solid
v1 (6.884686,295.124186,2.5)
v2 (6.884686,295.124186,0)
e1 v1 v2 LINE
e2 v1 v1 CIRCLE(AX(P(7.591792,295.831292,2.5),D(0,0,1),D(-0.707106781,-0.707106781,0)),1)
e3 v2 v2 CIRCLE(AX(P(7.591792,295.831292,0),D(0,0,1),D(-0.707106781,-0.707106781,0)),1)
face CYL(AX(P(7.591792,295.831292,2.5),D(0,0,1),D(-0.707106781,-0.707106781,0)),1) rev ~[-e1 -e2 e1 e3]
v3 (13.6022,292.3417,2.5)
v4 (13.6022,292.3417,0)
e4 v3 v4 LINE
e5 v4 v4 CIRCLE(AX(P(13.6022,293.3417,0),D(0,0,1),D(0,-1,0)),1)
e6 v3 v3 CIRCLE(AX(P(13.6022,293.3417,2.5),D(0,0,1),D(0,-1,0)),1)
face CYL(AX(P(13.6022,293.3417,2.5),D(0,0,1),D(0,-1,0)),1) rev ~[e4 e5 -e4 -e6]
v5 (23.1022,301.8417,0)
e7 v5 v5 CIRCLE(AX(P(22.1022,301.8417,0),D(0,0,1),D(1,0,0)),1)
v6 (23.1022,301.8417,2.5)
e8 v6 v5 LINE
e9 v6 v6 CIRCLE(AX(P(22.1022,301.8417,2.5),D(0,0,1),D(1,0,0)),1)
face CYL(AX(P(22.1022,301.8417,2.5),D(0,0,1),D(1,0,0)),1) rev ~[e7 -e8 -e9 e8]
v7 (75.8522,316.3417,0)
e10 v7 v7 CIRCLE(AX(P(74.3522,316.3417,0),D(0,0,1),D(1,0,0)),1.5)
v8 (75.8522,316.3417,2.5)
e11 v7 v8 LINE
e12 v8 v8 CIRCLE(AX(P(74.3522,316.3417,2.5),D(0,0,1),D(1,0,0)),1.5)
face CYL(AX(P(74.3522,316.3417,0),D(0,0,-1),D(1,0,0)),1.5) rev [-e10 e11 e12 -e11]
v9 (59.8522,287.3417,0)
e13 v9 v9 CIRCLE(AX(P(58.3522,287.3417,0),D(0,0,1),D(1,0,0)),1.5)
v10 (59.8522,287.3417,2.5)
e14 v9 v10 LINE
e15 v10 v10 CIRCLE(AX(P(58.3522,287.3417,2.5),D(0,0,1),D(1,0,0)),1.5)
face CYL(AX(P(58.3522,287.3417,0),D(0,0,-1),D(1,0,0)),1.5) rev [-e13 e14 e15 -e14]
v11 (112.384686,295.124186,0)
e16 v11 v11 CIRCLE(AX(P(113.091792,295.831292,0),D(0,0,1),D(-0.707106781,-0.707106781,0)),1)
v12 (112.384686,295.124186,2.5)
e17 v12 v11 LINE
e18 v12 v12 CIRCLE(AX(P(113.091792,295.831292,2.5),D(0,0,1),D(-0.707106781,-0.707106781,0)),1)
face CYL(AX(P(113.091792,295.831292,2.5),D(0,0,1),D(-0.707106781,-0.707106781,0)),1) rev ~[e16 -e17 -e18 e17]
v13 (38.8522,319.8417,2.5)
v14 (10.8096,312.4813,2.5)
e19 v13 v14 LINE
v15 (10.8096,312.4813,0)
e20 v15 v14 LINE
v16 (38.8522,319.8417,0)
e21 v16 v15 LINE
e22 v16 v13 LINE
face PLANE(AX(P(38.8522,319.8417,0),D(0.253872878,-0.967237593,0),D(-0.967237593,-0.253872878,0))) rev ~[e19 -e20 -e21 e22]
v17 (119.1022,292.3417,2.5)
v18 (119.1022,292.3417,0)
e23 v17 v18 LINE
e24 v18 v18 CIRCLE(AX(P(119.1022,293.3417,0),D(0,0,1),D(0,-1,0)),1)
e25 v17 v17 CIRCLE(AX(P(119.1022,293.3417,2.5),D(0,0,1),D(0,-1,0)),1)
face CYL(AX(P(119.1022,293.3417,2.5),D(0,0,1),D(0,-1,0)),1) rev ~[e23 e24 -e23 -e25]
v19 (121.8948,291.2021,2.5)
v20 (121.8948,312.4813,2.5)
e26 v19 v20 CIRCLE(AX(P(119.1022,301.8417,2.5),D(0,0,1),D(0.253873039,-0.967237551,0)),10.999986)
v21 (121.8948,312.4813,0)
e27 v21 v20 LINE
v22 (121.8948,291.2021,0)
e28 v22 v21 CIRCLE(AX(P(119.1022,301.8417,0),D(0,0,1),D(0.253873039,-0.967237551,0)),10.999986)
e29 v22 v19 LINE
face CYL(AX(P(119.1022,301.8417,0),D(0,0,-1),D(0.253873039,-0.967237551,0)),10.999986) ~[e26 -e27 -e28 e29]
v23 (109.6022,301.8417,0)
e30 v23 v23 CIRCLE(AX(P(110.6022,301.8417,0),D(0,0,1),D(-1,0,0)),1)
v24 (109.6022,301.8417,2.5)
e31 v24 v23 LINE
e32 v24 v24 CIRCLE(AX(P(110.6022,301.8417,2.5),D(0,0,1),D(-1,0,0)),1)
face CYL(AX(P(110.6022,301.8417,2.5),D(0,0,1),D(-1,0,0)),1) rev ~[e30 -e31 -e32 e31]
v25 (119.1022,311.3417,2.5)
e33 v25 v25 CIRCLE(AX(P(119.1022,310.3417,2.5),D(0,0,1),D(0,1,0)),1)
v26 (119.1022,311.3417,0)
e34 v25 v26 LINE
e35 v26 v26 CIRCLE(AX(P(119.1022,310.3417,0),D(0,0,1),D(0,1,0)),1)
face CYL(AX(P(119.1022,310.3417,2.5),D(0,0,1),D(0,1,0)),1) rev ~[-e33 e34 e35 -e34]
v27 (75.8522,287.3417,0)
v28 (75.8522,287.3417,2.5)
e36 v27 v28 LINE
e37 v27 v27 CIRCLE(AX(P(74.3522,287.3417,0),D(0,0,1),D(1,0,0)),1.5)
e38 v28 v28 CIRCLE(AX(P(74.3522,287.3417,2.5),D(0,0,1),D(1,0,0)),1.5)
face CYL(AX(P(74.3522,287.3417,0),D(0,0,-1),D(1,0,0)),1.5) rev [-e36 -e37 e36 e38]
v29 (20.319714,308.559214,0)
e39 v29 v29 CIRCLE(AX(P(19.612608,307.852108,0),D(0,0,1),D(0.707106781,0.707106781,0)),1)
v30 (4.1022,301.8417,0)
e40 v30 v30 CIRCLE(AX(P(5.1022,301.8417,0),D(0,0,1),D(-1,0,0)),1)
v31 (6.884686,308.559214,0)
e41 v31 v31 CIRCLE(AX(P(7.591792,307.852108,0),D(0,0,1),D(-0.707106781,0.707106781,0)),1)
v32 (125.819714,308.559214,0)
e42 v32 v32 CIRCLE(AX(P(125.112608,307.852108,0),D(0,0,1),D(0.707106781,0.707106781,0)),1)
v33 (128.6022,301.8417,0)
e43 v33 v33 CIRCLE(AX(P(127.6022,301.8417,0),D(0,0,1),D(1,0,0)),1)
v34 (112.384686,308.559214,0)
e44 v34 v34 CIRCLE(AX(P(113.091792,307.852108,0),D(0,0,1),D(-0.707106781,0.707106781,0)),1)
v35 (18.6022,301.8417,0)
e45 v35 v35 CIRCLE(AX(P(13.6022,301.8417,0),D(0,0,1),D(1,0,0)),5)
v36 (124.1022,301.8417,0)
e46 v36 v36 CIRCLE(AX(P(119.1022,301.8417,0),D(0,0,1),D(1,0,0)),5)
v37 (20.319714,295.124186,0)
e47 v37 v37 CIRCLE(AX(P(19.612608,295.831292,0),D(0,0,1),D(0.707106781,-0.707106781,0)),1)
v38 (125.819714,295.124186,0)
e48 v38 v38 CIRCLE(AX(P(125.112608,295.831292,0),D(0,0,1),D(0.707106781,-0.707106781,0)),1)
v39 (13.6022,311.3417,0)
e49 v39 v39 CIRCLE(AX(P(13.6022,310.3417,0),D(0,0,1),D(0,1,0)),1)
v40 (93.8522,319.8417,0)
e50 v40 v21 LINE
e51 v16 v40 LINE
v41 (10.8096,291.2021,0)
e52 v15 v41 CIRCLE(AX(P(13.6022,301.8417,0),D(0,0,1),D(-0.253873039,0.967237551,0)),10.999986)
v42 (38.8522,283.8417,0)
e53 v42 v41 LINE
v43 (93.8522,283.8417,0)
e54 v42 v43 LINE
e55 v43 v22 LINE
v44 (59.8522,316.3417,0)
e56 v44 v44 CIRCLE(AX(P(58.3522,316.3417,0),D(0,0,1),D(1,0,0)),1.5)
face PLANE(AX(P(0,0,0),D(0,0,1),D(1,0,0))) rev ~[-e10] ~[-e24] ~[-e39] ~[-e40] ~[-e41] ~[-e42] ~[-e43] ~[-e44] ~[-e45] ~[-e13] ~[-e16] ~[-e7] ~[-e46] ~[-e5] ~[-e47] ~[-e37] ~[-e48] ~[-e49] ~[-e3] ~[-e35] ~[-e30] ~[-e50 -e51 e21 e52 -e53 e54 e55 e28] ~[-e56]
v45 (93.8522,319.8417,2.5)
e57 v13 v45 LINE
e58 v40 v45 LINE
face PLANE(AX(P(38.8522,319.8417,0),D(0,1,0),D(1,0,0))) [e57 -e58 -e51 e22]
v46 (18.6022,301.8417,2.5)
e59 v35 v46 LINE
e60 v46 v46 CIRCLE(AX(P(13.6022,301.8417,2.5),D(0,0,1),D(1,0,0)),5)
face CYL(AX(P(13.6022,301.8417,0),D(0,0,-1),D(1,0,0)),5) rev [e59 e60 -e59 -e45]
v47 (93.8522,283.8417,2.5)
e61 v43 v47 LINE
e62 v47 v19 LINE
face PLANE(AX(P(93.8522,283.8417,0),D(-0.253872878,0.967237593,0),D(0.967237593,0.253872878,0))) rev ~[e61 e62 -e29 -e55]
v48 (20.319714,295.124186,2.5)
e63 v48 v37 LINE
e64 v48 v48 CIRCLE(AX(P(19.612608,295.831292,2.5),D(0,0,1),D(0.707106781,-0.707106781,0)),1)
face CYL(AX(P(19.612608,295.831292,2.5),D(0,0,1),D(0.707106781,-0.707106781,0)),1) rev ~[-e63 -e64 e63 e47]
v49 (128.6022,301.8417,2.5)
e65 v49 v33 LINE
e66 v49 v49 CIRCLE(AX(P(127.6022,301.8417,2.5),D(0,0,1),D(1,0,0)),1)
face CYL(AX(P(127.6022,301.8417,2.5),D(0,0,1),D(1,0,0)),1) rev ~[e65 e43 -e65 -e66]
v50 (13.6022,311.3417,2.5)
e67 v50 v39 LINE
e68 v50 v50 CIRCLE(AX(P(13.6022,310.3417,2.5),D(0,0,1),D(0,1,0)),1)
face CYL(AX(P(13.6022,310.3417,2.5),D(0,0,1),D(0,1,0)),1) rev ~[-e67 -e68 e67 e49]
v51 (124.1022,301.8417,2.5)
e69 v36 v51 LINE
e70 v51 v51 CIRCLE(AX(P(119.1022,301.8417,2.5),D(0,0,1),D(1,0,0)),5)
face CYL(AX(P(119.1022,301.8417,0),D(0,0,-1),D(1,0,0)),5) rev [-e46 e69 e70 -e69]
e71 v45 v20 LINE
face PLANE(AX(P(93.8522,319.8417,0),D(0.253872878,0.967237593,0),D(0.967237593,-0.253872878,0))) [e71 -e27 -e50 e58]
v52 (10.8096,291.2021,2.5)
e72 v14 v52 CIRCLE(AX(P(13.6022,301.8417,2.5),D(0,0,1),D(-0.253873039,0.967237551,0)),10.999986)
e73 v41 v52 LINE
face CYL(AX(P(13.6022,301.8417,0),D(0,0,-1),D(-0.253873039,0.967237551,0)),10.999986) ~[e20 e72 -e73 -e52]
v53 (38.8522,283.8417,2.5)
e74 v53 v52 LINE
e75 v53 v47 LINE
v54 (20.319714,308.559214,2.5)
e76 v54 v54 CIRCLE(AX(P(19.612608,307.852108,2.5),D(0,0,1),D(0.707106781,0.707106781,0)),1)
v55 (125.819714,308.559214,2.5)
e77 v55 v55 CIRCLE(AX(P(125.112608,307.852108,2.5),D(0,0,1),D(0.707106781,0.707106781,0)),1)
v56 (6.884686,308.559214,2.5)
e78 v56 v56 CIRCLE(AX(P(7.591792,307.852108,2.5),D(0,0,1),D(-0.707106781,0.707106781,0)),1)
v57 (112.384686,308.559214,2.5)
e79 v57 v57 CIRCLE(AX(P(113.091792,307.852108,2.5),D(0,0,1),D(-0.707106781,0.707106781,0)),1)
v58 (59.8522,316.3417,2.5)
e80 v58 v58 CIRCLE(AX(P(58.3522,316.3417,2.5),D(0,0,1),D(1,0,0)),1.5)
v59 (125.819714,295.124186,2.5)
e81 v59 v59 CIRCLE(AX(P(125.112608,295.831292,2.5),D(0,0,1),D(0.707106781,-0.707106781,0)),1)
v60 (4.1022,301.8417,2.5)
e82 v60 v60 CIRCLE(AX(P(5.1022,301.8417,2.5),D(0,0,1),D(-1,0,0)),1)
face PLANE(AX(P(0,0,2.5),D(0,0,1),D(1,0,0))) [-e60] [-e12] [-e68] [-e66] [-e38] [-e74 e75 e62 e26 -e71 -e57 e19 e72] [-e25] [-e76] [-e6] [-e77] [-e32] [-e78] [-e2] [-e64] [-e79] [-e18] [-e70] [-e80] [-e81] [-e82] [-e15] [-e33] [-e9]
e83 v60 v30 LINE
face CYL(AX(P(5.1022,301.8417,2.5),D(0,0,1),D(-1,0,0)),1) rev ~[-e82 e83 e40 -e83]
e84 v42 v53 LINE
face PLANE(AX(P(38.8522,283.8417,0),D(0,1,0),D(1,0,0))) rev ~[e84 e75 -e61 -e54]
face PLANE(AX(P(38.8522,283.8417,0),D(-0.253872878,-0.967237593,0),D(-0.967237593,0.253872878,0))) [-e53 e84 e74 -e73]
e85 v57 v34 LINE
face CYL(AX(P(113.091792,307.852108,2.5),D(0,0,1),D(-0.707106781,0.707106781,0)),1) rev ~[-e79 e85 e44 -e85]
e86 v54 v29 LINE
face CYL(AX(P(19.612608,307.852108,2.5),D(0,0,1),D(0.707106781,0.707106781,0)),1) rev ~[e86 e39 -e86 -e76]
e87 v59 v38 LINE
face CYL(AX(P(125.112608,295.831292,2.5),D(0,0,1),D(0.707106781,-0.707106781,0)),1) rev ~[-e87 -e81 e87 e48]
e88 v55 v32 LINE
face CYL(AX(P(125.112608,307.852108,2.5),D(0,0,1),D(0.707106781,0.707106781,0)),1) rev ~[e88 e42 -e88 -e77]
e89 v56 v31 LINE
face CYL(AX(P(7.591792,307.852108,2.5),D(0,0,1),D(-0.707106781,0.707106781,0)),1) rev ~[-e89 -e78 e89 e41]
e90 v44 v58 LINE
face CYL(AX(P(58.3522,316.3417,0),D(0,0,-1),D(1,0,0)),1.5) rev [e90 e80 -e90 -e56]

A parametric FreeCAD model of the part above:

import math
import FreeCAD as App
import Part
import Sketcher
Q = App.Units.Quantity

doc = App.newDocument("Part")
body = doc.addObject("PartDesign::Body", "Body")

# Sketch on XY plane
sketch1 = body.newObject("Sketcher::SketchObject", "Sketch")
sketch1.AttachmentSupport = (doc.getObject("XY_Plane"), [""])
sketch1.MapMode = "FlatFace"
sketch1.addGeometry(Part.LineSegment(App.Vector(10.8, 291.2, 0), App.Vector(38.9, 283.8, 0)), False)
sketch1.addGeometry(Part.LineSegment(App.Vector(38.9, 283.8, 0), App.Vector(93.9, 283.8, 0)), False)
sketch1.addGeometry(Part.LineSegment(App.Vector(93.9, 283.8, 0), App.Vector(121.9, 291.2, 0)), False)
sketch1.addGeometry(Part.ArcOfCircle(Part.Circle(App.Vector(119.1, 301.8, 0), App.Vector(0, 0, 1), 11), math.radians(-75), math.radians(75)), False)
sketch1.addGeometry(Part.LineSegment(App.Vector(121.9, 312.5, 0), App.Vector(93.9, 319.8, 0)), False)
sketch1.addGeometry(Part.LineSegment(App.Vector(93.9, 319.8, 0), App.Vector(38.9, 319.8, 0)), False)
sketch1.addGeometry(Part.LineSegment(App.Vector(38.9, 319.8, 0), App.Vector(10.8, 312.5, 0)), False)
sketch1.addGeometry(Part.ArcOfCircle(Part.Circle(App.Vector(13.6, 301.8, 0), App.Vector(0, 0, 1), 11), math.radians(105), math.radians(255)), False)
sketch1.addGeometry(Part.Circle(App.Vector(58.4, 287.3, 0), App.Vector(0, 0, 1), 1.5), False)
sketch1.addGeometry(Part.Circle(App.Vector(74.4, 287.3, 0), App.Vector(0, 0, 1), 1.5), False)
sketch1.addGeometry(Part.Circle(App.Vector(13.6, 301.8, 0), App.Vector(0, 0, 1), 5), False)
sketch1.addGeometry(Part.Circle(App.Vector(58.4, 316.3, 0), App.Vector(0, 0, 1), 1.5), False)
sketch1.addGeometry(Part.Circle(App.Vector(119.1, 301.8, 0), App.Vector(0, 0, 1), 5), False)
sketch1.addGeometry(Part.Circle(App.Vector(74.4, 316.3, 0), App.Vector(0, 0, 1), 1.5), False)
sketch1.addConstraint(Sketcher.Constraint("Coincident", 0, 2, 1, 1))
sketch1.addConstraint(Sketcher.Constraint("Coincident", 1, 2, 2, 1))
sketch1.addConstraint(Sketcher.Constraint("Tangent", 2, 2, 3, 1))
sketch1.addConstraint(Sketcher.Constraint("Tangent", 3, 2, 4, 1))
sketch1.addConstraint(Sketcher.Constraint("Coincident", 4, 2, 5, 1))
sketch1.addConstraint(Sketcher.Constraint("Coincident", 5, 2, 6, 1))
sketch1.addConstraint(Sketcher.Constraint("Tangent", 6, 2, 7, 1))
sketch1.addConstraint(Sketcher.Constraint("Tangent", 7, 2, 0, 1))
sketch1.addConstraint(Sketcher.Constraint("Horizontal", 1))
sketch1.addConstraint(Sketcher.Constraint("Horizontal", 5))
sketch1.addConstraint(Sketcher.Constraint("Coincident", 10, 3, 7, 3))
sketch1.addConstraint(Sketcher.Constraint("Coincident", 12, 3, 3, 3))
sketch1.addConstraint(Sketcher.Constraint("Equal", 3, 7))
sketch1.addConstraint(Sketcher.Constraint("Equal", 8, 9))
sketch1.addConstraint(Sketcher.Constraint("Equal", 9, 11))
sketch1.addConstraint(Sketcher.Constraint("Equal", 10, 12))
sketch1.addConstraint(Sketcher.Constraint("Equal", 11, 13))
sketch1.addConstraint(Sketcher.Constraint("Parallel", 0, 4))
sketch1.addConstraint(Sketcher.Constraint("Parallel", 2, 6))
sketch1.addConstraint(Sketcher.Constraint("Horizontal", 3, 3, 7, 3))
sketch1.addConstraint(Sketcher.Constraint("Horizontal", 8, 3, 9, 3))
sketch1.addConstraint(Sketcher.Constraint("Horizontal", 11, 3, 13, 3))
sketch1.addConstraint(Sketcher.Constraint("Horizontal", 3, 2, 6, 2))
sketch1.addConstraint(Sketcher.Constraint("Vertical", 8, 3, 11, 3))
sketch1.addConstraint(Sketcher.Constraint("Vertical", 9, 3, 13, 3))
sketch1.addConstraint(Sketcher.Constraint("Vertical", 1, 2, 4, 2))
sketch1.addConstraint(Sketcher.Constraint("Diameter", 8, Q("3 mm")))
sketch1.addConstraint(Sketcher.Constraint("Diameter", 10, Q("10 mm")))
sketch1.addConstraint(Sketcher.Constraint("Radius", 3, Q("11 mm")))
sketch1.addConstraint(Sketcher.Constraint("DistanceX", 8, 3, 9, 3, Q("16 mm")))
sketch1.addConstraint(Sketcher.Constraint("DistanceY", 0, 2, 5, 2, Q("36 mm")))
sketch1.addConstraint(Sketcher.Constraint("DistanceX", 7, 3, 3, 3, Q("105.5 mm")))
sketch1.addConstraint(Sketcher.Constraint("DistanceX", 0, 2, 8, 3, Q("19.5 mm")))
sketch1.addConstraint(Sketcher.Constraint("DistanceX", 9, 3, 1, 2, Q("19.5 mm")))
sketch1.addConstraint(Sketcher.Constraint("DistanceY", 8, 3, 11, 3, Q("29 mm")))
sketch1.addConstraint(Sketcher.Constraint("DistanceY", 8, 3, 7, 3, Q("14.5 mm")))
sketch1.addConstraint(Sketcher.Constraint("DistanceY", -1, 1, 2, 2, Q("291.202 mm")))
sketch1.addConstraint(Sketcher.Constraint("DistanceX", -1, 1, 3, 3, Q("119.1022 mm")))
pad1 = body.newObject("PartDesign::Pad", "Pad")
pad1.Profile = sketch1
pad1.Length = 2.5

# Sketch on XY plane
sketch2 = body.newObject("Sketcher::SketchObject", "Sketch001")
sketch2.AttachmentSupport = (doc.getObject("XY_Plane"), [""])
sketch2.MapMode = "FlatFace"
sketch2.AttachmentOffset = App.Placement(App.Vector(0, 0, 2.5), App.Rotation())
sketch2.addGeometry(Part.Circle(App.Vector(22.1, 301.8, 0), App.Vector(0, 0, 1), 1), False)
sketch2.addConstraint(Sketcher.Constraint("Diameter", 0, Q("2 mm")))
sketch2.addConstraint(Sketcher.Constraint("DistanceX", -1, 1, 0, 3, Q("22.1022 mm")))
sketch2.addConstraint(Sketcher.Constraint("DistanceY", -1, 1, 0, 3, Q("301.8417 mm")))
pocket1 = body.newObject("PartDesign::Pocket", "Pocket")
pocket1.Profile = sketch2
pocket1.Type = "ThroughAll"
doc.recompute()

datumline = body.newObject("PartDesign::Line", "DatumLine")
datumline.Placement = App.Placement(App.Vector(13.6022, 301.8417, 0), App.Rotation(App.Vector(0, 0, 1), App.Vector(0, 0, 1)))
polarpattern = body.newObject("PartDesign::PolarPattern", "PolarPattern")
polarpattern.Originals = [pocket1]
polarpattern.Axis = (datumline, [""])
polarpattern.Angle = 360
polarpattern.Occurrences = 8
body.Tip = polarpattern

# Sketch on XY plane
sketch3 = body.newObject("Sketcher::SketchObject", "Sketch002")
sketch3.AttachmentSupport = (doc.getObject("XY_Plane"), [""])
sketch3.MapMode = "FlatFace"
sketch3.AttachmentOffset = App.Placement(App.Vector(0, 0, 2.5), App.Rotation())
sketch3.addGeometry(Part.Circle(App.Vector(127.6, 301.8, 0), App.Vector(0, 0, 1), 1), False)
sketch3.addConstraint(Sketcher.Constraint("Diameter", 0, Q("2 mm")))
sketch3.addConstraint(Sketcher.Constraint("DistanceX", -1, 1, 0, 3, Q("127.6022 mm")))
sketch3.addConstraint(Sketcher.Constraint("DistanceY", -1, 1, 0, 3, Q("301.8417 mm")))
pocket2 = body.newObject("PartDesign::Pocket", "Pocket001")
pocket2.Profile = sketch3
pocket2.Type = "ThroughAll"
doc.recompute()

datumline2 = body.newObject("PartDesign::Line", "DatumLine001")
datumline2.Placement = App.Placement(App.Vector(119.1022, 301.8417, 0), App.Rotation(App.Vector(0, 0, 1), App.Vector(0, 0, 1)))
polarpattern2 = body.newObject("PartDesign::PolarPattern", "PolarPattern001")
polarpattern2.Originals = [pocket2]
polarpattern2.Axis = (datumline2, [""])
polarpattern2.Angle = 360
polarpattern2.Occurrences = 8
body.Tip = polarpattern2

doc.recompute()
